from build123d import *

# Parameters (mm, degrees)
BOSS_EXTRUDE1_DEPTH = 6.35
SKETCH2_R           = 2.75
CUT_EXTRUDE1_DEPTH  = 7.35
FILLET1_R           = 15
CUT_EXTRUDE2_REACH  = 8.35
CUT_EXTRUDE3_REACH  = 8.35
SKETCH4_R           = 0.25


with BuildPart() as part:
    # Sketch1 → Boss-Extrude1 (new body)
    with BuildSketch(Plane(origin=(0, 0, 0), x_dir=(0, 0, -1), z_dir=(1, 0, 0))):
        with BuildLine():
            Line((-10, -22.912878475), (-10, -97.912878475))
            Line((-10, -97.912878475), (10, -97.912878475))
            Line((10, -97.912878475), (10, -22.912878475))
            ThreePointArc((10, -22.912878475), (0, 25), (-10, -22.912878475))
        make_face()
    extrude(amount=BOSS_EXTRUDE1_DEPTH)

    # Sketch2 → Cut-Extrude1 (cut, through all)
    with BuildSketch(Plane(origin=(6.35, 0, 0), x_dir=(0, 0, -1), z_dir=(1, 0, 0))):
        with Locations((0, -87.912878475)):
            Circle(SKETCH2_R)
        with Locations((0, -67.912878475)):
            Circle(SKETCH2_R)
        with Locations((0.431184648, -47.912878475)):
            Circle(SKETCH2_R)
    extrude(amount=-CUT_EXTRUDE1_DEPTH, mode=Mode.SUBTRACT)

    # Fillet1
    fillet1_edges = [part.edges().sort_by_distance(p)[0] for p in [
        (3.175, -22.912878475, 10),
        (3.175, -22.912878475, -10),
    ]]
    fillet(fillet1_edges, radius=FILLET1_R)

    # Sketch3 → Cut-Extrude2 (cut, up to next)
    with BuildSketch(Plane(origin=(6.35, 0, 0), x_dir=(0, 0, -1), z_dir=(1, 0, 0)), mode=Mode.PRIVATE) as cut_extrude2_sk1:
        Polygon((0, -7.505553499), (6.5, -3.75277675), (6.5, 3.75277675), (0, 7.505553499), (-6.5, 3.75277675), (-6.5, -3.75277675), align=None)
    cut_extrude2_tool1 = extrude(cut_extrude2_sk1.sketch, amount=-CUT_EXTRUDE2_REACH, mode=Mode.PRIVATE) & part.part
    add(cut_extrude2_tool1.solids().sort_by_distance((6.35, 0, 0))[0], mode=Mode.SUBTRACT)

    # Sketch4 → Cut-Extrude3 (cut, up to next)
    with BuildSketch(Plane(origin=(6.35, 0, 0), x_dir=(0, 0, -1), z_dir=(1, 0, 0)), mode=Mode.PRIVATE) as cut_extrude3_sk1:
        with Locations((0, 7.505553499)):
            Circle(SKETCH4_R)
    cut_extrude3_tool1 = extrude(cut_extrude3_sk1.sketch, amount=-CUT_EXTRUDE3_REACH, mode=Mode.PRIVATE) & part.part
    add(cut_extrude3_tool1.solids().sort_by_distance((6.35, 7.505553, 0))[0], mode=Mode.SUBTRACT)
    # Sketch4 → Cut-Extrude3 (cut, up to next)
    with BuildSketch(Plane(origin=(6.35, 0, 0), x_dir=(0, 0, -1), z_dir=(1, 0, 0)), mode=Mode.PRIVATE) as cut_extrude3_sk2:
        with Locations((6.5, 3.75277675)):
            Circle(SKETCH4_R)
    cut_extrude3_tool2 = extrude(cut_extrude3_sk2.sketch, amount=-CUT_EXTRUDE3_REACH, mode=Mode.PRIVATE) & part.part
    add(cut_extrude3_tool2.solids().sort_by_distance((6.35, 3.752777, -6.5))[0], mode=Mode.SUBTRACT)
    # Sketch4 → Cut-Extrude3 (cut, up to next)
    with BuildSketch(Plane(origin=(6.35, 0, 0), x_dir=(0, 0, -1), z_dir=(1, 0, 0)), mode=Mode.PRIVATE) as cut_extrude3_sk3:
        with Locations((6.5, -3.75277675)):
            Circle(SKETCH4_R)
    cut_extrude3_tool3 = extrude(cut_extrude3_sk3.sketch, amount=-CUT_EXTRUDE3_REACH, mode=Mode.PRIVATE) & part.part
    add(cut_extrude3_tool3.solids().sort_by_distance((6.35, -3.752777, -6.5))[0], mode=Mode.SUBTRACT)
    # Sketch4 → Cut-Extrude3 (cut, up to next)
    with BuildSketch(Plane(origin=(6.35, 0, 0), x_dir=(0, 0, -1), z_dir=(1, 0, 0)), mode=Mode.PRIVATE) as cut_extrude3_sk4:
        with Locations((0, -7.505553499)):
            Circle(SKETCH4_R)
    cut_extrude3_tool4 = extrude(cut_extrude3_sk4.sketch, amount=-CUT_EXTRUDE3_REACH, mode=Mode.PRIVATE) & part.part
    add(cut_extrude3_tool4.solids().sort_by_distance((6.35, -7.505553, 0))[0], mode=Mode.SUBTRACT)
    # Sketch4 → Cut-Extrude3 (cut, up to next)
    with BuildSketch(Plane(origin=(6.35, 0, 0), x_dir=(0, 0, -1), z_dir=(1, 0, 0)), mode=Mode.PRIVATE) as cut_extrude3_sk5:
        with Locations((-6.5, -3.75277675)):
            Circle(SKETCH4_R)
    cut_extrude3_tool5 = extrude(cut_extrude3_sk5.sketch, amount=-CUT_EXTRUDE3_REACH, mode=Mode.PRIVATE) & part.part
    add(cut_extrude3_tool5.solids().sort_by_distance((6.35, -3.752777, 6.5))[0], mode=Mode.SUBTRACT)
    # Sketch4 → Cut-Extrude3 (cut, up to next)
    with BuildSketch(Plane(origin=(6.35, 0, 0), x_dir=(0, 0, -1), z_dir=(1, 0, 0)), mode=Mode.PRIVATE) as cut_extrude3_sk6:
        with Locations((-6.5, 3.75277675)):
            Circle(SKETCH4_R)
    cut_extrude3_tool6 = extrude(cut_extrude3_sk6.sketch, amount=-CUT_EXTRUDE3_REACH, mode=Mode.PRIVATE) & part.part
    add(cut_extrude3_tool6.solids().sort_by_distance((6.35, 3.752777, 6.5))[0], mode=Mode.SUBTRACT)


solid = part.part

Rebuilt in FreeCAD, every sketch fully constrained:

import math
import FreeCAD as App
import Part
import Sketcher
Q = App.Units.Quantity


def edges_at(feature, points):
    """Names of the edges that pass closest to the given points."""
    edges = feature.Shape.Edges
    near = lambda p: min(range(len(edges)), key=lambda i: edges[i].distToShape(Part.Vertex(*p))[0])
    return sorted({f"Edge{near(p) + 1}" for p in points})


def add_polygon(sketch, points):
    """Adds a closed chain of lines whose ends are joined by coincident constraints."""
    first, n = sketch.GeometryCount, len(points)
    for a, b in zip(points, points[1:] + points[:1]):
        sketch.addGeometry(Part.LineSegment(App.Vector(*a, 0), App.Vector(*b, 0)), False)
    for i in range(n):
        sketch.addConstraint(Sketcher.Constraint("Coincident", first + i, 2, first + (i + 1) % n, 1))

doc = App.newDocument("Part")
body = doc.addObject("PartDesign::Body", "Body")

sketch1 = doc.addObject("Sketcher::SketchObject", "Sketch")
body.addObject(sketch1)
sketch1.AttachmentSupport = (doc.YZ_Plane, [""])
sketch1.MapMode = "FlatFace"
sketch1.addGeometry(Part.LineSegment(App.Vector(-22.912878, 10, 0), App.Vector(-97.912878, 10, 0)), False)
sketch1.addGeometry(Part.LineSegment(App.Vector(-97.912878, 10, 0), App.Vector(-97.912878, -10, 0)), False)
sketch1.addGeometry(Part.LineSegment(App.Vector(-97.912878, -10, 0), App.Vector(-22.912878, -10, 0)), False)
sketch1.addGeometry(Part.ArcOfCircle(Part.Circle(App.Vector(0, 0, 0), App.Vector(0, 0, 1), 25), math.radians(-156.421822), math.radians(156.421822)), False)
sketch1.addConstraint(Sketcher.Constraint("Coincident", 0, 2, 1, 1))
sketch1.addConstraint(Sketcher.Constraint("Coincident", 1, 2, 2, 1))
sketch1.addConstraint(Sketcher.Constraint("Coincident", 2, 2, 3, 1))
sketch1.addConstraint(Sketcher.Constraint("Coincident", 3, 2, 0, 1))
sketch1.addConstraint(Sketcher.Constraint("Horizontal", 0))
sketch1.addConstraint(Sketcher.Constraint("Vertical", 1))
sketch1.addConstraint(Sketcher.Constraint("Horizontal", 2))
sketch1.addConstraint(Sketcher.Constraint("Coincident", 3, 3, -1, 1))
sketch1.addConstraint(Sketcher.Constraint("Vertical", 2, 2, 3, 2))
sketch1.addConstraint(Sketcher.Constraint("Radius", 3, Q("25 mm")))
sketch1.addConstraint(Sketcher.Constraint("DistanceX", 0, 2, 0, 1, Q("75 mm")))
sketch1.addConstraint(Sketcher.Constraint("DistanceY", 1, 2, 1, 1, Q("20 mm")))
pad1 = doc.addObject("PartDesign::Pad", "Pad")
body.addObject(pad1)
pad1.Profile = sketch1
pad1.Length = 6.35

sketch2 = doc.addObject("Sketcher::SketchObject", "Sketch001")
body.addObject(sketch2)
sketch2.AttachmentSupport = (doc.YZ_Plane, [""])
sketch2.MapMode = "FlatFace"
sketch2.AttachmentOffset = App.Placement(App.Vector(0, 0, 6.35), App.Rotation())
sketch2.addGeometry(Part.Circle(App.Vector(-87.912878, 0, 0), App.Vector(0, 0, 1), 2.75), False)
sketch2.addGeometry(Part.Circle(App.Vector(-67.912878, 0, 0), App.Vector(0, 0, 1), 2.75), False)
sketch2.addGeometry(Part.Circle(App.Vector(-47.912878, -0.431185, 0), App.Vector(0, 0, 1), 2.75), False)
sketch2.addConstraint(Sketcher.Constraint("Equal", 0, 1))
sketch2.addConstraint(Sketcher.Constraint("Equal", 1, 2))
sketch2.addConstraint(Sketcher.Constraint("PointOnObject", 0, 3, -1))
sketch2.addConstraint(Sketcher.Constraint("PointOnObject", 1, 3, -1))
sketch2.addConstraint(Sketcher.Constraint("Diameter", 0, Q("5.5 mm")))
sketch2.addConstraint(Sketcher.Constraint("DistanceX", 0, 3, 1, 3, Q("20 mm")))
sketch2.addConstraint(Sketcher.Constraint("DistanceX", 1, 3, 2, 3, Q("20 mm")))
sketch2.addConstraint(Sketcher.Constraint("DistanceX", 0, 3, -1, 1, Q("87.912878 mm")))
sketch2.addConstraint(Sketcher.Constraint("DistanceY", 2, 3, -1, 1, Q("0.431185 mm")))
pocket1 = doc.addObject("PartDesign::Pocket", "Pocket")
body.addObject(pocket1)
pocket1.Profile = sketch2
pocket1.Type = "ThroughAll"
doc.recompute()

fillet = doc.addObject("PartDesign::Fillet", "Fillet")
body.addObject(fillet)
fillet.Base = (pocket1, edges_at(pocket1, [(3.175, -22.913, 10), (3.175, -22.913, -10)]))
fillet.Radius = 15

sketch3 = doc.addObject("Sketcher::SketchObject", "Sketch002")
body.addObject(sketch3)
sketch3.AttachmentSupport = (doc.YZ_Plane, [""])
sketch3.MapMode = "FlatFace"
sketch3.AttachmentOffset = App.Placement(App.Vector(0, 0, 6.35), App.Rotation())
add_polygon(sketch3, [(-7.505553, 0), (-3.752777, -6.5), (3.752777, -6.5), (7.505553, 0), (3.752777, 6.5), (-3.752777, 6.5)])
sketch3.addConstraint(Sketcher.Constraint("Horizontal", 1))
sketch3.addConstraint(Sketcher.Constraint("Horizontal", 4))
sketch3.addConstraint(Sketcher.Constraint("Symmetric", 0, 2, 3, 2, -1, 1))
sketch3.addConstraint(Sketcher.Constraint("Symmetric", 2, 2, 5, 2, -1, 1))
sketch3.addConstraint(Sketcher.Constraint("PointOnObject", 2, 2, -1))
sketch3.addConstraint(Sketcher.Constraint("Parallel", 2, 5))
sketch3.addConstraint(Sketcher.Constraint("Vertical", 1, 2, 3, 2))
sketch3.addConstraint(Sketcher.Constraint("Angle", 0, Q("-60 deg")))
sketch3.addConstraint(Sketcher.Constraint("DistanceY", 1, 2, 3, 2, Q("13 mm")))
sketch3.addConstraint(Sketcher.Constraint("DistanceX", 1, 1, 1, 2, Q("7.505554 mm")))
pocket2 = doc.addObject("PartDesign::Pocket", "Pocket001")
body.addObject(pocket2)
pocket2.Profile = sketch3
pocket2.Type = "UpToFirst"

sketch4 = doc.addObject("Sketcher::SketchObject", "Sketch003")
body.addObject(sketch4)
sketch4.AttachmentSupport = (doc.YZ_Plane, [""])
sketch4.MapMode = "FlatFace"
sketch4.AttachmentOffset = App.Placement(App.Vector(0, 0, 6.35), App.Rotation())
sketch4.addGeometry(Part.Circle(App.Vector(7.505553, 0, 0), App.Vector(0, 0, 1), 0.25), False)
sketch4.addConstraint(Sketcher.Constraint("PointOnObject", 0, 3, -1))
sketch4.addConstraint(Sketcher.Constraint("Diameter", 0, Q("0.5 mm")))
sketch4.addConstraint(Sketcher.Constraint("DistanceX", -1, 1, 0, 3, Q("7.505553 mm")))
pocket3 = doc.addObject("PartDesign::Pocket", "Pocket002")
body.addObject(pocket3)
pocket3.Profile = sketch4
pocket3.Length = 6.35

sketch5 = doc.addObject("Sketcher::SketchObject", "Sketch004")
body.addObject(sketch5)
sketch5.AttachmentSupport = (doc.YZ_Plane, [""])
sketch5.MapMode = "FlatFace"
sketch5.AttachmentOffset = App.Placement(App.Vector(0, 0, 6.35), App.Rotation())
sketch5.addGeometry(Part.Circle(App.Vector(3.752777, -6.5, 0), App.Vector(0, 0, 1), 0.25), False)
sketch5.addConstraint(Sketcher.Constraint("Diameter", 0, Q("0.5 mm")))
sketch5.addConstraint(Sketcher.Constraint("DistanceY", 0, 3, -1, 1, Q("6.5 mm")))
sketch5.addConstraint(Sketcher.Constraint("DistanceX", -1, 1, 0, 3, Q("3.752777 mm")))
pocket4 = doc.addObject("PartDesign::Pocket", "Pocket003")
body.addObject(pocket4)
pocket4.Profile = sketch5
pocket4.Type = "UpToFirst"

sketch6 = doc.addObject("Sketcher::SketchObject", "Sketch005")
body.addObject(sketch6)
sketch6.AttachmentSupport = (doc.YZ_Plane, [""])
sketch6.MapMode = "FlatFace"
sketch6.AttachmentOffset = App.Placement(App.Vector(0, 0, 6.35), App.Rotation())
sketch6.addGeometry(Part.Circle(App.Vector(-3.752777, -6.5, 0), App.Vector(0, 0, 1), 0.25), False)
sketch6.addConstraint(Sketcher.Constraint("Diameter", 0, Q("0.5 mm")))
sketch6.addConstraint(Sketcher.Constraint("DistanceY", 0, 3, -1, 1, Q("6.5 mm")))
sketch6.addConstraint(Sketcher.Constraint("DistanceX", 0, 3, -1, 1, Q("3.752777 mm")))
pocket5 = doc.addObject("PartDesign::Pocket", "Pocket004")
body.addObject(pocket5)
pocket5.Profile = sketch6
pocket5.Type = "UpToFirst"

sketch7 = doc.addObject("Sketcher::SketchObject", "Sketch006")
body.addObject(sketch7)
sketch7.AttachmentSupport = (doc.YZ_Plane, [""])
sketch7.MapMode = "FlatFace"
sketch7.AttachmentOffset = App.Placement(App.Vector(0, 0, 6.35), App.Rotation())
sketch7.addGeometry(Part.Circle(App.Vector(-7.505553, 0, 0), App.Vector(0, 0, 1), 0.25), False)
sketch7.addConstraint(Sketcher.Constraint("PointOnObject", 0, 3, -1))
sketch7.addConstraint(Sketcher.Constraint("Diameter", 0, Q("0.5 mm")))
sketch7.addConstraint(Sketcher.Constraint("DistanceX", 0, 3, -1, 1, Q("7.505553 mm")))
pocket6 = doc.addObject("PartDesign::Pocket", "Pocket005")
body.addObject(pocket6)
pocket6.Profile = sketch7
pocket6.Length = 6.35

sketch8 = doc.addObject("Sketcher::SketchObject", "Sketch007")
body.addObject(sketch8)
sketch8.AttachmentSupport = (doc.YZ_Plane, [""])
sketch8.MapMode = "FlatFace"
sketch8.AttachmentOffset = App.Placement(App.Vector(0, 0, 6.35), App.Rotation())
sketch8.addGeometry(Part.Circle(App.Vector(-3.752777, 6.5, 0), App.Vector(0, 0, 1), 0.25), False)
sketch8.addConstraint(Sketcher.Constraint("Diameter", 0, Q("0.5 mm")))
sketch8.addConstraint(Sketcher.Constraint("DistanceY", -1, 1, 0, 3, Q("6.5 mm")))
sketch8.addConstraint(Sketcher.Constraint("DistanceX", 0, 3, -1, 1, Q("3.752777 mm")))
pocket7 = doc.addObject("PartDesign::Pocket", "Pocket006")
body.addObject(pocket7)
pocket7.Profile = sketch8
pocket7.Type = "UpToFirst"

sketch9 = doc.addObject("Sketcher::SketchObject", "Sketch008")
body.addObject(sketch9)
sketch9.AttachmentSupport = (doc.YZ_Plane, [""])
sketch9.MapMode = "FlatFace"
sketch9.AttachmentOffset = App.Placement(App.Vector(0, 0, 6.35), App.Rotation())
sketch9.addGeometry(Part.Circle(App.Vector(3.752777, 6.5, 0), App.Vector(0, 0, 1), 0.25), False)
sketch9.addConstraint(Sketcher.Constraint("Diameter", 0, Q("0.5 mm")))
sketch9.addConstraint(Sketcher.Constraint("DistanceY", -1, 1, 0, 3, Q("6.5 mm")))
sketch9.addConstraint(Sketcher.Constraint("DistanceX", -1, 1, 0, 3, Q("3.752777 mm")))
pocket8 = doc.addObject("PartDesign::Pocket", "Pocket007")
body.addObject(pocket8)
pocket8.Profile = sketch9
pocket8.Type = "UpToFirst"

doc.recompute()
